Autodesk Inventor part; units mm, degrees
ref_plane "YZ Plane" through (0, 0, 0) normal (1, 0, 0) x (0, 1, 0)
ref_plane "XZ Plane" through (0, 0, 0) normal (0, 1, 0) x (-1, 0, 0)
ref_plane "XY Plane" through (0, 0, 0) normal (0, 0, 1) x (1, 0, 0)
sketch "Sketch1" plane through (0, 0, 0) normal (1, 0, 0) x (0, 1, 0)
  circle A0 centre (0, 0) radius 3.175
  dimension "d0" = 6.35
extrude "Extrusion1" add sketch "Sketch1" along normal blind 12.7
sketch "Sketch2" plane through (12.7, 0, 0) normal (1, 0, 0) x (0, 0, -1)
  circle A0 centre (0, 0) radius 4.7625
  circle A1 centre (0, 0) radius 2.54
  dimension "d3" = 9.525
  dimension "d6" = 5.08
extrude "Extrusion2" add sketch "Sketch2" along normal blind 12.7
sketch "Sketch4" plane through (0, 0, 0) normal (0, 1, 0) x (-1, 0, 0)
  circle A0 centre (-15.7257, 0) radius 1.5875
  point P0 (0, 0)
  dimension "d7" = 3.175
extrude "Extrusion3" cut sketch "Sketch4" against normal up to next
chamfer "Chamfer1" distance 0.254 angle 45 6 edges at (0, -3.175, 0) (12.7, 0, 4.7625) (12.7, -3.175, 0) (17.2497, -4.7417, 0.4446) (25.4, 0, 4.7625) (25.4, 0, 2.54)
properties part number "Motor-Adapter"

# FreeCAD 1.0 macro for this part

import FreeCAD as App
import Part
import Sketcher
Q = App.Units.Quantity


def edges_at(feature, points):
    """Names of the edges that pass closest to the given points."""
    edges = feature.Shape.Edges
    near = lambda p: min(range(len(edges)), key=lambda i: edges[i].distToShape(Part.Vertex(*p))[0])
    return sorted({f"Edge{near(p) + 1}" for p in points})

doc = App.newDocument("Part")
body = doc.addObject("PartDesign::Body", "Body")

sketch1 = body.newObject("Sketcher::SketchObject", "Sketch")
sketch1.AttachmentSupport = (doc.getObject("YZ_Plane"), [""])
sketch1.MapMode = "FlatFace"
sketch1.addGeometry(Part.Circle(App.Vector(0, 0, 0), App.Vector(0, 0, 1), 3.175), False)
sketch1.addConstraint([
    Sketcher.Constraint("Coincident", 0, 3, -1, 1),
    Sketcher.Constraint("Diameter", 0, Q("0.25 in")),
])
pad1 = body.newObject("PartDesign::Pad", "Pad")
pad1.Profile = sketch1
pad1.Length = Q("0.5 in")

sketch2 = body.newObject("Sketcher::SketchObject", "Sketch001")
sketch2.AttachmentSupport = (doc.getObject("YZ_Plane"), [""])
sketch2.MapMode = "FlatFace"
sketch2.AttachmentOffset = App.Placement(App.Vector(0, 0, 0.5 * 25.4), App.Rotation())
sketch2.addGeometry([
    Part.Circle(App.Vector(0, 0, 0), App.Vector(0, 0, 1), 4.7625),
    Part.Circle(App.Vector(0, 0, 0), App.Vector(0, 0, 1), 2.54),
], False)
sketch2.addConstraint([
    Sketcher.Constraint("Coincident", 0, 3, -1, 1),
    Sketcher.Constraint("Coincident", 1, 3, -1, 1),
    Sketcher.Constraint("Diameter", 1, Q("0.2 in")),
    Sketcher.Constraint("Diameter", 0, Q("0.375 in")),
])
pad2 = body.newObject("PartDesign::Pad", "Pad001")
pad2.Profile = sketch2
pad2.Length = Q("0.5 in")

sketch3 = body.newObject("Sketcher::SketchObject", "Sketch002")
sketch3.AttachmentSupport = (doc.getObject("XZ_Plane"), [""])
sketch3.MapMode = "FlatFace"
sketch3.addGeometry(Part.Circle(App.Vector(15.7257, 0, 0), App.Vector(0, 0, 1), 1.5875), False)
sketch3.addConstraint([
    Sketcher.Constraint("PointOnObject", 0, 3, -1),
    Sketcher.Constraint("Diameter", 0, Q("0.125 in")),
    Sketcher.Constraint("DistanceX", -1, 1, 0, 3, Q("15.7257 mm")),
])
pocket1 = body.newObject("PartDesign::Pocket", "Pocket")
pocket1.Profile = sketch3
pocket1.Length = Q("0.1875 in")
pocket1.Reversed = True
doc.recompute()

chamfer = body.newObject("PartDesign::Chamfer", "Chamfer")
chamfer.Base = (pocket1, edges_at(pocket1, [
    (0, -3.175, 0),
    (12.7, 0, 4.763),
    (12.7, -3.175, 0),
    (17.25, -4.742, 0.445),
    (25.4, 0, 4.763),
    (25.4, 0, 2.54),
]))
chamfer.Size = Q("0.01 in")

doc.recompute()
